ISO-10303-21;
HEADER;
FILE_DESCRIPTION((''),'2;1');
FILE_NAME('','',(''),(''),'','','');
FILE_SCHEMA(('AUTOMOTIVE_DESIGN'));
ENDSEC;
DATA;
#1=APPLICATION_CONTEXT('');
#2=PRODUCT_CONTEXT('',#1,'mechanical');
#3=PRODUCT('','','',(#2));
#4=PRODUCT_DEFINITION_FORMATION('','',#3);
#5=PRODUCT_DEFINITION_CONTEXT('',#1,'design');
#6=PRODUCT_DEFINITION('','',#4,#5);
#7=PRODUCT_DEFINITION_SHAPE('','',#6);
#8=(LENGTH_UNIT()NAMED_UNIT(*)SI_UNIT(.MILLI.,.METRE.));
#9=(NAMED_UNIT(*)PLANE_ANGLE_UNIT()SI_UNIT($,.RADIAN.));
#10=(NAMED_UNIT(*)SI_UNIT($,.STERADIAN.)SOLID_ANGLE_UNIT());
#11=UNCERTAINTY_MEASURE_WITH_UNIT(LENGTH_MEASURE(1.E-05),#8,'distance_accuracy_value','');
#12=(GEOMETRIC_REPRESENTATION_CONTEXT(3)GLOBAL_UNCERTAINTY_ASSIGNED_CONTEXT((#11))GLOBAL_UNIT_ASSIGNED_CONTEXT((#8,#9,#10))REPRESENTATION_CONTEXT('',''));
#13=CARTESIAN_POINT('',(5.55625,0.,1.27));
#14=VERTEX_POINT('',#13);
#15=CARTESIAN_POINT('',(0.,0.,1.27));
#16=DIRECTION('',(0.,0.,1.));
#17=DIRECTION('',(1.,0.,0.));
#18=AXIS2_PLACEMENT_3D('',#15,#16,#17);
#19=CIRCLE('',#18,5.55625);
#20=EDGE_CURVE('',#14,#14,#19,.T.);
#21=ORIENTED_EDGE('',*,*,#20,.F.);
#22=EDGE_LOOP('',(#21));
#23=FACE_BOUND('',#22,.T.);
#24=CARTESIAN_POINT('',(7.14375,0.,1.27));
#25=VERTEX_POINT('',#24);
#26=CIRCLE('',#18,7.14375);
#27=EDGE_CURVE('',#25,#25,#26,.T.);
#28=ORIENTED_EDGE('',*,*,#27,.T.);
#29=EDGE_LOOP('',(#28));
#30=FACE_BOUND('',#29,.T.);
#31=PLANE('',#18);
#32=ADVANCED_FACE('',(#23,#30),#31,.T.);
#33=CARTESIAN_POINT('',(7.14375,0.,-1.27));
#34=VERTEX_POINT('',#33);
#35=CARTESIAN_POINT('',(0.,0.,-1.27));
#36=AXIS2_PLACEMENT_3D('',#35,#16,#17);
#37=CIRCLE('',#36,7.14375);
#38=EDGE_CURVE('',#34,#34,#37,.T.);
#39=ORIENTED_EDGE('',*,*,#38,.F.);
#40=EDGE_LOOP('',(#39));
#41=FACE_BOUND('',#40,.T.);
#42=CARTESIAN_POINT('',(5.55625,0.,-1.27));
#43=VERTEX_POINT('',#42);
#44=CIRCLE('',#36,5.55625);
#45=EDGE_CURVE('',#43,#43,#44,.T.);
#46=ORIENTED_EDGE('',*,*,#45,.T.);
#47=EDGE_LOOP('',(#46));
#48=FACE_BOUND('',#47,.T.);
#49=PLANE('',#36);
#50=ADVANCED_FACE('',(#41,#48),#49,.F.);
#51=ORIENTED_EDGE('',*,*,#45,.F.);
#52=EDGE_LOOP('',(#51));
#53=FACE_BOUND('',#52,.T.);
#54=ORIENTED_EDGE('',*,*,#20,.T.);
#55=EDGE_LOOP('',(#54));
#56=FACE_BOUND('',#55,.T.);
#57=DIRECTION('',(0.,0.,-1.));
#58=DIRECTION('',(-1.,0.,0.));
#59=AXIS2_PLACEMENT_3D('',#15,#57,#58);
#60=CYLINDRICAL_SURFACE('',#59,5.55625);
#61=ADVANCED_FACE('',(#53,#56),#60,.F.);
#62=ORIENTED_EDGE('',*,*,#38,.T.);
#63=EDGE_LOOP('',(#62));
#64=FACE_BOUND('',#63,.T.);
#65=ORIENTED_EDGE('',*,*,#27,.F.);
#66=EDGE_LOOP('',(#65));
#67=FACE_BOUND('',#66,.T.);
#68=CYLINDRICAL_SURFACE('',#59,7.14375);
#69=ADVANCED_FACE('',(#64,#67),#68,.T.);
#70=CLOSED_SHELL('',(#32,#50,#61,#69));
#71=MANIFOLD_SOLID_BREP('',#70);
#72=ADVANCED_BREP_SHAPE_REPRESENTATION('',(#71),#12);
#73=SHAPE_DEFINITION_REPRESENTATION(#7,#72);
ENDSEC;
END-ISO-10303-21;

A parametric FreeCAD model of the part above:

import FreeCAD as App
import Part
import Sketcher
Q = App.Units.Quantity

doc = App.newDocument("Part")
body = doc.addObject("PartDesign::Body", "Body")

# Sketch on XY plane
sketch1 = body.newObject("Sketcher::SketchObject", "Sketch")
sketch1.AttachmentSupport = (doc.getObject("XY_Plane"), [""])
sketch1.MapMode = "FlatFace"
sketch1.addGeometry([
    Part.Circle(App.Vector(0, 0, 0), App.Vector(0, 0, 1), 7),
    Part.Circle(App.Vector(0, 0, 0), App.Vector(0, 0, 1), 6),
], False)
sketch1.addConstraint([
    Sketcher.Constraint("Coincident", 0, 3, -1, 1),
    Sketcher.Constraint("Coincident", 1, 3, -1, 1),
    Sketcher.Constraint("Diameter", 0, Q("0.5625 in")),
    Sketcher.Constraint("Diameter", 1, Q("0.4375 in")),
])
pad1 = body.newObject("PartDesign::Pad", "Pad")
pad1.Profile = sketch1
pad1.Length = Q("0.1 in")
pad1.Midplane = True

doc.recompute()
